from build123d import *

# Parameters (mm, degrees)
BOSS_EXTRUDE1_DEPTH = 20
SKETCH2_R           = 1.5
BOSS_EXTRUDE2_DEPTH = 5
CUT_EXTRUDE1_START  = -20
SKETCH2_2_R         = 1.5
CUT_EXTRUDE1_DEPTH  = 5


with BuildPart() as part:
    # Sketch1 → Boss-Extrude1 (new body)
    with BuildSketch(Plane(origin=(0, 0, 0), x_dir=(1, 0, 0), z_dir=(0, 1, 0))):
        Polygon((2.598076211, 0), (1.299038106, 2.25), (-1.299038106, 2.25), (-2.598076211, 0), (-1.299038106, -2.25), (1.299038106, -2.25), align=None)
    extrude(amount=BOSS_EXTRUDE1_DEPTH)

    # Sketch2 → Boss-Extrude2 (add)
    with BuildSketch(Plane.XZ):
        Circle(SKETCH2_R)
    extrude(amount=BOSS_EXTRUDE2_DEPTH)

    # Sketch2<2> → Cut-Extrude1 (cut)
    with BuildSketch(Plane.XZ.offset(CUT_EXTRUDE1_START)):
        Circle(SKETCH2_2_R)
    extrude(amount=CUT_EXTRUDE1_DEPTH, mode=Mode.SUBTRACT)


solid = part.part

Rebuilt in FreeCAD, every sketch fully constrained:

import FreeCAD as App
import Part
import Sketcher

V = App.Vector
Q = App.Units.Quantity

doc = App.newDocument("Part")
body = doc.addObject("PartDesign::Body", "Body")

sketch1 = doc.addObject("Sketcher::SketchObject", "Sketch")
body.addObject(sketch1)
sketch1.AttachmentSupport = (doc.XZ_Plane, [""])
sketch1.MapMode = "FlatFace"
sketch1.addGeometry([
    Part.LineSegment(V(2.6, 0, 0), V(1.3, -2.2, 0)),
    Part.LineSegment(V(1.3, -2.2, 0), V(-1.3, -2.2, 0)),
    Part.LineSegment(V(-1.3, -2.2, 0), V(-2.6, 0, 0)),
    Part.LineSegment(V(-2.6, 0, 0), V(-1.3, 2.2, 0)),
    Part.LineSegment(V(-1.3, 2.2, 0), V(1.3, 2.2, 0)),
    Part.LineSegment(V(1.3, 2.2, 0), V(2.6, 0, 0)),
], False)
sketch1.addConstraint([
    Sketcher.Constraint("Coincident", 0, 2, 1, 1),
    Sketcher.Constraint("Coincident", 1, 2, 2, 1),
    Sketcher.Constraint("Coincident", 2, 2, 3, 1),
    Sketcher.Constraint("Coincident", 3, 2, 4, 1),
    Sketcher.Constraint("Coincident", 4, 2, 5, 1),
    Sketcher.Constraint("Coincident", 5, 2, 0, 1),
    Sketcher.Constraint("Horizontal", 1),
    Sketcher.Constraint("Horizontal", 4),
    Sketcher.Constraint("Symmetric", 0, 2, 3, 2, -1, 1),
    Sketcher.Constraint("Symmetric", 2, 2, 5, 2, -1, 1),
    Sketcher.Constraint("PointOnObject", 2, 2, -1),
    Sketcher.Constraint("Parallel", 2, 5),
    Sketcher.Constraint("Vertical", 1, 2, 3, 2),
    Sketcher.Constraint("Angle", 0, Q("-120 deg")),
    Sketcher.Constraint("DistanceY", 1, 2, 3, 2, 4.5),
    Sketcher.Constraint("DistanceX", 1, 2, 1, 1, 2.598076),
])
pad1 = doc.addObject("PartDesign::Pad", "Pad")
body.addObject(pad1)
pad1.Profile = sketch1
pad1.Length = 20
pad1.Reversed = True

sketch2 = doc.addObject("Sketcher::SketchObject", "Sketch001")
body.addObject(sketch2)
sketch2.AttachmentSupport = (doc.XZ_Plane, [""])
sketch2.MapMode = "FlatFace"
sketch2.addGeometry(Part.Circle(V(0, 0, 0), V(0, 0, 1), 1.5), False)
sketch2.addConstraint([
    Sketcher.Constraint("Coincident", 0, 3, -1, 1),
    Sketcher.Constraint("Diameter", 0, 3.0),
])
pad2 = doc.addObject("PartDesign::Pad", "Pad001")
body.addObject(pad2)
pad2.Profile = sketch2
pad2.Length = 5

sketch3 = doc.addObject("Sketcher::SketchObject", "Sketch002")
body.addObject(sketch3)
sketch3.AttachmentSupport = (doc.XZ_Plane, [""])
sketch3.MapMode = "FlatFace"
sketch3.AttachmentOffset = App.Placement(V(0, 0, -20), App.Rotation())
sketch3.addGeometry(Part.Circle(V(0, 0, 0), V(0, 0, 1), 1.5), False)
sketch3.addConstraint([
    Sketcher.Constraint("Coincident", 0, 3, -1, 1),
    Sketcher.Constraint("Diameter", 0, 3.0),
])
pocket1 = doc.addObject("PartDesign::Pocket", "Pocket")
body.addObject(pocket1)
pocket1.Profile = sketch3
pocket1.Length = 5
pocket1.Reversed = True

doc.recompute()
